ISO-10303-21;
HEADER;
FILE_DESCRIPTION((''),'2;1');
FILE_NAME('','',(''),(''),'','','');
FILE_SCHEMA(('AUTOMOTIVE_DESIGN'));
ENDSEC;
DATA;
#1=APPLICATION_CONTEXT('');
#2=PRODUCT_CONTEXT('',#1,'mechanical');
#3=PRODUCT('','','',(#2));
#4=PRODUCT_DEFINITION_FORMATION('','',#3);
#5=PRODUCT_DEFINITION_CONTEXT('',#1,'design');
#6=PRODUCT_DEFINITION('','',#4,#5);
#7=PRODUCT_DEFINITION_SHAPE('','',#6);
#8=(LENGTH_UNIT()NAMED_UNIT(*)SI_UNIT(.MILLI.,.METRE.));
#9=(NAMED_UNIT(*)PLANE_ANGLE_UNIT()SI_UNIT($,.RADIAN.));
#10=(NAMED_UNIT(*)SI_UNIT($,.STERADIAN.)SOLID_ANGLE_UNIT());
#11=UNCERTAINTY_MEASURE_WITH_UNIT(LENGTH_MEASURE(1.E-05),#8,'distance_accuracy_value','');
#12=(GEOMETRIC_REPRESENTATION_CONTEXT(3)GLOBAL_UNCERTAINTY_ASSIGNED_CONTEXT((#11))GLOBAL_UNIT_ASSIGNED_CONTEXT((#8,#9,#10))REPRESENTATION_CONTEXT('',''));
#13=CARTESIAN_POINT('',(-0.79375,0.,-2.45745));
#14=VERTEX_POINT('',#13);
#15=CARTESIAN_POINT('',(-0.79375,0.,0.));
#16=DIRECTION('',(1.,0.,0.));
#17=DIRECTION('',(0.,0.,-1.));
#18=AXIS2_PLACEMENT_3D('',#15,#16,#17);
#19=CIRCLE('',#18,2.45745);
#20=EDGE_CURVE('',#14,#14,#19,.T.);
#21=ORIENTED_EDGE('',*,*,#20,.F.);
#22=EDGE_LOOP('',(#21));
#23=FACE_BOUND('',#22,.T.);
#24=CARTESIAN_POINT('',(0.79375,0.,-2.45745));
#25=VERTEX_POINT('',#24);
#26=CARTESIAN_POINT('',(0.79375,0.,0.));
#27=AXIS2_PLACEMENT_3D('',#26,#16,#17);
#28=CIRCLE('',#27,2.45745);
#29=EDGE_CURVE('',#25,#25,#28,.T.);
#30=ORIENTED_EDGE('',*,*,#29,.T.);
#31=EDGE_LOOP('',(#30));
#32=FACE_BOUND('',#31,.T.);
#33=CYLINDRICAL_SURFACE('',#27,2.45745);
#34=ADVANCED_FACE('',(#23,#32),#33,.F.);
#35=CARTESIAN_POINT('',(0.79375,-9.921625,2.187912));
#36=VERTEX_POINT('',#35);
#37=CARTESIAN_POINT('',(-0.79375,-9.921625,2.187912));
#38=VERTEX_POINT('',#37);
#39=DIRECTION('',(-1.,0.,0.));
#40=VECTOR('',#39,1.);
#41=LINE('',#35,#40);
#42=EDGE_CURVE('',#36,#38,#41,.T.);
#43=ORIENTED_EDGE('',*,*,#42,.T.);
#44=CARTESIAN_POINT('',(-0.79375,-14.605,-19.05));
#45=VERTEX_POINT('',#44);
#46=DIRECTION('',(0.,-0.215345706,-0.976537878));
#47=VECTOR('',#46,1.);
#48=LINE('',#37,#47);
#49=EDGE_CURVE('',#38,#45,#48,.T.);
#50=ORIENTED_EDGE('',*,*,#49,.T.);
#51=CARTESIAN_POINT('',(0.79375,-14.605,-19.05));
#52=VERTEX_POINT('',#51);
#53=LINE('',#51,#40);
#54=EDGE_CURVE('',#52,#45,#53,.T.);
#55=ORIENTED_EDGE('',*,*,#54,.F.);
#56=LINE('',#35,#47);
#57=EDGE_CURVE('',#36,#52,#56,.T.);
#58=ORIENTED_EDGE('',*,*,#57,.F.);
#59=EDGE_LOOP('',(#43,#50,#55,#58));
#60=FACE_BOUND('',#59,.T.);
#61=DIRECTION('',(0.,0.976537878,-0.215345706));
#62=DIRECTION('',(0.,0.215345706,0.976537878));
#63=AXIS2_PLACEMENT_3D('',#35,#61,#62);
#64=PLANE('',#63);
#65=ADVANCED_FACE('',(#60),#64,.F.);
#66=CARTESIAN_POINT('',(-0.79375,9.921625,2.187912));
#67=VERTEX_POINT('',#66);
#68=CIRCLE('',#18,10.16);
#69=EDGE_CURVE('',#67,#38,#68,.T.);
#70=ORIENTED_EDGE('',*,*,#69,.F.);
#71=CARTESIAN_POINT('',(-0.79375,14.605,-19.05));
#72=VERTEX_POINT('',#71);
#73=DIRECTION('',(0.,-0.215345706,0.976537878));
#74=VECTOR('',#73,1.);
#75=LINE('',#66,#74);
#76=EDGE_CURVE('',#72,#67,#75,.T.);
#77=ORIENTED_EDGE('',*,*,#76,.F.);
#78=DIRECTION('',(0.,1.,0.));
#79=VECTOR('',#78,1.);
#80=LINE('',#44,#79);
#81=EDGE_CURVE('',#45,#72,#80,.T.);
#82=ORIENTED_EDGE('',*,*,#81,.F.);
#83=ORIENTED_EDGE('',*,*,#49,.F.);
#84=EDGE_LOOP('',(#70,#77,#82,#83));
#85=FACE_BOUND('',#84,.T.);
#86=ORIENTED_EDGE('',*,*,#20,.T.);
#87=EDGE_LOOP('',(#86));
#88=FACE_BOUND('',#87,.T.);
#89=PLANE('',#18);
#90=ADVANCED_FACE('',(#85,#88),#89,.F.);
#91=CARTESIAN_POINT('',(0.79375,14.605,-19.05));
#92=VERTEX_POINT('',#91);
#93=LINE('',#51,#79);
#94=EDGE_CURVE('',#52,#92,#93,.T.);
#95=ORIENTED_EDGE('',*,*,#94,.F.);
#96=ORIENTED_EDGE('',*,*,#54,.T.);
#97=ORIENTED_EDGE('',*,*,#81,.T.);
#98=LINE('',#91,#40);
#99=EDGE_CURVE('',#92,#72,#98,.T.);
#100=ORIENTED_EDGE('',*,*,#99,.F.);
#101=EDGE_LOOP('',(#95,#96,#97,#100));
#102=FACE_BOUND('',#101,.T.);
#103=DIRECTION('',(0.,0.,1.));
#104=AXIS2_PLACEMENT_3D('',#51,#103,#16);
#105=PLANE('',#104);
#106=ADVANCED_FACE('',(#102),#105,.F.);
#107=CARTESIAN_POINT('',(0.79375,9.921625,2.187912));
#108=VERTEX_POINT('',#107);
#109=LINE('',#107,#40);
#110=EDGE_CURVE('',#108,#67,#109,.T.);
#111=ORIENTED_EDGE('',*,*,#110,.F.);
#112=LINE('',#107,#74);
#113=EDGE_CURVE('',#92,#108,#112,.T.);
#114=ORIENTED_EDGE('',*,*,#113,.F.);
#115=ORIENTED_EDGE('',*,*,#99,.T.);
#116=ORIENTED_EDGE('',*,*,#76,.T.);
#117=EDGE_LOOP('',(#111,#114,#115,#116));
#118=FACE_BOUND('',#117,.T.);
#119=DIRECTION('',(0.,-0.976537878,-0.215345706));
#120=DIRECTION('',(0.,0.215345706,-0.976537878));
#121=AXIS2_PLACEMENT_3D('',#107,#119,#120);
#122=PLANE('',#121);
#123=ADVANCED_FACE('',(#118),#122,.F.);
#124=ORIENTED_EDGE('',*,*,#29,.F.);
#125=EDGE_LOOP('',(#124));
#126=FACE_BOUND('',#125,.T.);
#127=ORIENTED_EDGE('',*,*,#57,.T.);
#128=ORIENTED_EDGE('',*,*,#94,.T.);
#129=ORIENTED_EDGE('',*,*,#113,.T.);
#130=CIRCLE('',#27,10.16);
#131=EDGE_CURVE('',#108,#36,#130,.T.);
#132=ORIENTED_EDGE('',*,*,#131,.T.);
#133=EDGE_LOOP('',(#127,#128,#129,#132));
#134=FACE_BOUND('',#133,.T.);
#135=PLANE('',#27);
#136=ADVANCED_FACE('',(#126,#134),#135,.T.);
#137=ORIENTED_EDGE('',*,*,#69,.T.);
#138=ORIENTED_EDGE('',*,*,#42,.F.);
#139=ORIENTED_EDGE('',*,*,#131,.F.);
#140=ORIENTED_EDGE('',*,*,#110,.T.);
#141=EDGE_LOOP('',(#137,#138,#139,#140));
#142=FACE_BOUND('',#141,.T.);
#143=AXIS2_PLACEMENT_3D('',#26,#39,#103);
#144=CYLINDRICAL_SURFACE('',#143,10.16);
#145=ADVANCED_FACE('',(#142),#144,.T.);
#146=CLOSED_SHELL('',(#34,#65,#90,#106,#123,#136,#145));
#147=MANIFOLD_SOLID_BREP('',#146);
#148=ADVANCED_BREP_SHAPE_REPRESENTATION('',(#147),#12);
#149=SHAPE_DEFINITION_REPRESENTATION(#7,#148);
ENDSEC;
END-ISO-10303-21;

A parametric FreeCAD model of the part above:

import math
import FreeCAD as App
import Part
import Sketcher

V = App.Vector
Q = App.Units.Quantity

doc = App.newDocument("Part")
body = doc.addObject("PartDesign::Body", "Body")

sketch1 = body.newObject("Sketcher::SketchObject", "Sketch")
sketch1.AttachmentSupport = (doc.getObject("YZ_Plane"), [""])
sketch1.MapMode = "FlatFace"
sketch1.addGeometry([
    Part.LineSegment(V(15, -19, 0), V(10, 2, 0)),
    Part.ArcOfCircle(Part.Circle(V(0, 0, 0), V(0, 0, 1), 10), math.radians(12), math.radians(168)),
    Part.LineSegment(V(-10, 2, 0), V(-15, -19, 0)),
    Part.LineSegment(V(-15, -19, 0), V(15, -19, 0)),
], False)
sketch1.addConstraint([
    Sketcher.Constraint("Tangent", 0, 2, 1, 1),
    Sketcher.Constraint("Tangent", 1, 2, 2, 1),
    Sketcher.Constraint("Coincident", 2, 2, 3, 1),
    Sketcher.Constraint("Coincident", 3, 2, 0, 1),
    Sketcher.Constraint("Horizontal", 3),
    Sketcher.Constraint("Coincident", 1, 3, -1, 1),
    Sketcher.Constraint("Horizontal", 0, 2, 1, 2),
    Sketcher.Constraint("Radius", 1, Q("0.4 in")),
    Sketcher.Constraint("DistanceX", 3, 1, 3, 2, Q("1.15 in")),
    Sketcher.Constraint("DistanceY", 2, 2, -1, 1, Q("0.75 in")),
])
pad1 = body.newObject("PartDesign::Pad", "Pad")
pad1.Profile = sketch1
pad1.Length = Q("0.0625 in")
pad1.Midplane = True

sketch2 = body.newObject("Sketcher::SketchObject", "Sketch001")
sketch2.AttachmentSupport = (doc.getObject("YZ_Plane"), [""])
sketch2.MapMode = "FlatFace"
sketch2.AttachmentOffset = App.Placement(V(0, 0, 0.03125 * 25.4), App.Rotation())
sketch2.addGeometry(Part.Circle(V(0, 0, 0), V(0, 0, 1), 2.5), False)
sketch2.addConstraint([
    Sketcher.Constraint("Coincident", 0, 3, -1, 1),
    Sketcher.Constraint("Diameter", 0, Q("0.1935 in")),
])
doc.recompute()
hole = body.newObject("PartDesign::Hole", "Hole")
hole.Profile = sketch2
hole.ThreadType = "None"
hole.Diameter = Q("0.1935 in")
hole.DepthType = "ThroughAll"

doc.recompute()
